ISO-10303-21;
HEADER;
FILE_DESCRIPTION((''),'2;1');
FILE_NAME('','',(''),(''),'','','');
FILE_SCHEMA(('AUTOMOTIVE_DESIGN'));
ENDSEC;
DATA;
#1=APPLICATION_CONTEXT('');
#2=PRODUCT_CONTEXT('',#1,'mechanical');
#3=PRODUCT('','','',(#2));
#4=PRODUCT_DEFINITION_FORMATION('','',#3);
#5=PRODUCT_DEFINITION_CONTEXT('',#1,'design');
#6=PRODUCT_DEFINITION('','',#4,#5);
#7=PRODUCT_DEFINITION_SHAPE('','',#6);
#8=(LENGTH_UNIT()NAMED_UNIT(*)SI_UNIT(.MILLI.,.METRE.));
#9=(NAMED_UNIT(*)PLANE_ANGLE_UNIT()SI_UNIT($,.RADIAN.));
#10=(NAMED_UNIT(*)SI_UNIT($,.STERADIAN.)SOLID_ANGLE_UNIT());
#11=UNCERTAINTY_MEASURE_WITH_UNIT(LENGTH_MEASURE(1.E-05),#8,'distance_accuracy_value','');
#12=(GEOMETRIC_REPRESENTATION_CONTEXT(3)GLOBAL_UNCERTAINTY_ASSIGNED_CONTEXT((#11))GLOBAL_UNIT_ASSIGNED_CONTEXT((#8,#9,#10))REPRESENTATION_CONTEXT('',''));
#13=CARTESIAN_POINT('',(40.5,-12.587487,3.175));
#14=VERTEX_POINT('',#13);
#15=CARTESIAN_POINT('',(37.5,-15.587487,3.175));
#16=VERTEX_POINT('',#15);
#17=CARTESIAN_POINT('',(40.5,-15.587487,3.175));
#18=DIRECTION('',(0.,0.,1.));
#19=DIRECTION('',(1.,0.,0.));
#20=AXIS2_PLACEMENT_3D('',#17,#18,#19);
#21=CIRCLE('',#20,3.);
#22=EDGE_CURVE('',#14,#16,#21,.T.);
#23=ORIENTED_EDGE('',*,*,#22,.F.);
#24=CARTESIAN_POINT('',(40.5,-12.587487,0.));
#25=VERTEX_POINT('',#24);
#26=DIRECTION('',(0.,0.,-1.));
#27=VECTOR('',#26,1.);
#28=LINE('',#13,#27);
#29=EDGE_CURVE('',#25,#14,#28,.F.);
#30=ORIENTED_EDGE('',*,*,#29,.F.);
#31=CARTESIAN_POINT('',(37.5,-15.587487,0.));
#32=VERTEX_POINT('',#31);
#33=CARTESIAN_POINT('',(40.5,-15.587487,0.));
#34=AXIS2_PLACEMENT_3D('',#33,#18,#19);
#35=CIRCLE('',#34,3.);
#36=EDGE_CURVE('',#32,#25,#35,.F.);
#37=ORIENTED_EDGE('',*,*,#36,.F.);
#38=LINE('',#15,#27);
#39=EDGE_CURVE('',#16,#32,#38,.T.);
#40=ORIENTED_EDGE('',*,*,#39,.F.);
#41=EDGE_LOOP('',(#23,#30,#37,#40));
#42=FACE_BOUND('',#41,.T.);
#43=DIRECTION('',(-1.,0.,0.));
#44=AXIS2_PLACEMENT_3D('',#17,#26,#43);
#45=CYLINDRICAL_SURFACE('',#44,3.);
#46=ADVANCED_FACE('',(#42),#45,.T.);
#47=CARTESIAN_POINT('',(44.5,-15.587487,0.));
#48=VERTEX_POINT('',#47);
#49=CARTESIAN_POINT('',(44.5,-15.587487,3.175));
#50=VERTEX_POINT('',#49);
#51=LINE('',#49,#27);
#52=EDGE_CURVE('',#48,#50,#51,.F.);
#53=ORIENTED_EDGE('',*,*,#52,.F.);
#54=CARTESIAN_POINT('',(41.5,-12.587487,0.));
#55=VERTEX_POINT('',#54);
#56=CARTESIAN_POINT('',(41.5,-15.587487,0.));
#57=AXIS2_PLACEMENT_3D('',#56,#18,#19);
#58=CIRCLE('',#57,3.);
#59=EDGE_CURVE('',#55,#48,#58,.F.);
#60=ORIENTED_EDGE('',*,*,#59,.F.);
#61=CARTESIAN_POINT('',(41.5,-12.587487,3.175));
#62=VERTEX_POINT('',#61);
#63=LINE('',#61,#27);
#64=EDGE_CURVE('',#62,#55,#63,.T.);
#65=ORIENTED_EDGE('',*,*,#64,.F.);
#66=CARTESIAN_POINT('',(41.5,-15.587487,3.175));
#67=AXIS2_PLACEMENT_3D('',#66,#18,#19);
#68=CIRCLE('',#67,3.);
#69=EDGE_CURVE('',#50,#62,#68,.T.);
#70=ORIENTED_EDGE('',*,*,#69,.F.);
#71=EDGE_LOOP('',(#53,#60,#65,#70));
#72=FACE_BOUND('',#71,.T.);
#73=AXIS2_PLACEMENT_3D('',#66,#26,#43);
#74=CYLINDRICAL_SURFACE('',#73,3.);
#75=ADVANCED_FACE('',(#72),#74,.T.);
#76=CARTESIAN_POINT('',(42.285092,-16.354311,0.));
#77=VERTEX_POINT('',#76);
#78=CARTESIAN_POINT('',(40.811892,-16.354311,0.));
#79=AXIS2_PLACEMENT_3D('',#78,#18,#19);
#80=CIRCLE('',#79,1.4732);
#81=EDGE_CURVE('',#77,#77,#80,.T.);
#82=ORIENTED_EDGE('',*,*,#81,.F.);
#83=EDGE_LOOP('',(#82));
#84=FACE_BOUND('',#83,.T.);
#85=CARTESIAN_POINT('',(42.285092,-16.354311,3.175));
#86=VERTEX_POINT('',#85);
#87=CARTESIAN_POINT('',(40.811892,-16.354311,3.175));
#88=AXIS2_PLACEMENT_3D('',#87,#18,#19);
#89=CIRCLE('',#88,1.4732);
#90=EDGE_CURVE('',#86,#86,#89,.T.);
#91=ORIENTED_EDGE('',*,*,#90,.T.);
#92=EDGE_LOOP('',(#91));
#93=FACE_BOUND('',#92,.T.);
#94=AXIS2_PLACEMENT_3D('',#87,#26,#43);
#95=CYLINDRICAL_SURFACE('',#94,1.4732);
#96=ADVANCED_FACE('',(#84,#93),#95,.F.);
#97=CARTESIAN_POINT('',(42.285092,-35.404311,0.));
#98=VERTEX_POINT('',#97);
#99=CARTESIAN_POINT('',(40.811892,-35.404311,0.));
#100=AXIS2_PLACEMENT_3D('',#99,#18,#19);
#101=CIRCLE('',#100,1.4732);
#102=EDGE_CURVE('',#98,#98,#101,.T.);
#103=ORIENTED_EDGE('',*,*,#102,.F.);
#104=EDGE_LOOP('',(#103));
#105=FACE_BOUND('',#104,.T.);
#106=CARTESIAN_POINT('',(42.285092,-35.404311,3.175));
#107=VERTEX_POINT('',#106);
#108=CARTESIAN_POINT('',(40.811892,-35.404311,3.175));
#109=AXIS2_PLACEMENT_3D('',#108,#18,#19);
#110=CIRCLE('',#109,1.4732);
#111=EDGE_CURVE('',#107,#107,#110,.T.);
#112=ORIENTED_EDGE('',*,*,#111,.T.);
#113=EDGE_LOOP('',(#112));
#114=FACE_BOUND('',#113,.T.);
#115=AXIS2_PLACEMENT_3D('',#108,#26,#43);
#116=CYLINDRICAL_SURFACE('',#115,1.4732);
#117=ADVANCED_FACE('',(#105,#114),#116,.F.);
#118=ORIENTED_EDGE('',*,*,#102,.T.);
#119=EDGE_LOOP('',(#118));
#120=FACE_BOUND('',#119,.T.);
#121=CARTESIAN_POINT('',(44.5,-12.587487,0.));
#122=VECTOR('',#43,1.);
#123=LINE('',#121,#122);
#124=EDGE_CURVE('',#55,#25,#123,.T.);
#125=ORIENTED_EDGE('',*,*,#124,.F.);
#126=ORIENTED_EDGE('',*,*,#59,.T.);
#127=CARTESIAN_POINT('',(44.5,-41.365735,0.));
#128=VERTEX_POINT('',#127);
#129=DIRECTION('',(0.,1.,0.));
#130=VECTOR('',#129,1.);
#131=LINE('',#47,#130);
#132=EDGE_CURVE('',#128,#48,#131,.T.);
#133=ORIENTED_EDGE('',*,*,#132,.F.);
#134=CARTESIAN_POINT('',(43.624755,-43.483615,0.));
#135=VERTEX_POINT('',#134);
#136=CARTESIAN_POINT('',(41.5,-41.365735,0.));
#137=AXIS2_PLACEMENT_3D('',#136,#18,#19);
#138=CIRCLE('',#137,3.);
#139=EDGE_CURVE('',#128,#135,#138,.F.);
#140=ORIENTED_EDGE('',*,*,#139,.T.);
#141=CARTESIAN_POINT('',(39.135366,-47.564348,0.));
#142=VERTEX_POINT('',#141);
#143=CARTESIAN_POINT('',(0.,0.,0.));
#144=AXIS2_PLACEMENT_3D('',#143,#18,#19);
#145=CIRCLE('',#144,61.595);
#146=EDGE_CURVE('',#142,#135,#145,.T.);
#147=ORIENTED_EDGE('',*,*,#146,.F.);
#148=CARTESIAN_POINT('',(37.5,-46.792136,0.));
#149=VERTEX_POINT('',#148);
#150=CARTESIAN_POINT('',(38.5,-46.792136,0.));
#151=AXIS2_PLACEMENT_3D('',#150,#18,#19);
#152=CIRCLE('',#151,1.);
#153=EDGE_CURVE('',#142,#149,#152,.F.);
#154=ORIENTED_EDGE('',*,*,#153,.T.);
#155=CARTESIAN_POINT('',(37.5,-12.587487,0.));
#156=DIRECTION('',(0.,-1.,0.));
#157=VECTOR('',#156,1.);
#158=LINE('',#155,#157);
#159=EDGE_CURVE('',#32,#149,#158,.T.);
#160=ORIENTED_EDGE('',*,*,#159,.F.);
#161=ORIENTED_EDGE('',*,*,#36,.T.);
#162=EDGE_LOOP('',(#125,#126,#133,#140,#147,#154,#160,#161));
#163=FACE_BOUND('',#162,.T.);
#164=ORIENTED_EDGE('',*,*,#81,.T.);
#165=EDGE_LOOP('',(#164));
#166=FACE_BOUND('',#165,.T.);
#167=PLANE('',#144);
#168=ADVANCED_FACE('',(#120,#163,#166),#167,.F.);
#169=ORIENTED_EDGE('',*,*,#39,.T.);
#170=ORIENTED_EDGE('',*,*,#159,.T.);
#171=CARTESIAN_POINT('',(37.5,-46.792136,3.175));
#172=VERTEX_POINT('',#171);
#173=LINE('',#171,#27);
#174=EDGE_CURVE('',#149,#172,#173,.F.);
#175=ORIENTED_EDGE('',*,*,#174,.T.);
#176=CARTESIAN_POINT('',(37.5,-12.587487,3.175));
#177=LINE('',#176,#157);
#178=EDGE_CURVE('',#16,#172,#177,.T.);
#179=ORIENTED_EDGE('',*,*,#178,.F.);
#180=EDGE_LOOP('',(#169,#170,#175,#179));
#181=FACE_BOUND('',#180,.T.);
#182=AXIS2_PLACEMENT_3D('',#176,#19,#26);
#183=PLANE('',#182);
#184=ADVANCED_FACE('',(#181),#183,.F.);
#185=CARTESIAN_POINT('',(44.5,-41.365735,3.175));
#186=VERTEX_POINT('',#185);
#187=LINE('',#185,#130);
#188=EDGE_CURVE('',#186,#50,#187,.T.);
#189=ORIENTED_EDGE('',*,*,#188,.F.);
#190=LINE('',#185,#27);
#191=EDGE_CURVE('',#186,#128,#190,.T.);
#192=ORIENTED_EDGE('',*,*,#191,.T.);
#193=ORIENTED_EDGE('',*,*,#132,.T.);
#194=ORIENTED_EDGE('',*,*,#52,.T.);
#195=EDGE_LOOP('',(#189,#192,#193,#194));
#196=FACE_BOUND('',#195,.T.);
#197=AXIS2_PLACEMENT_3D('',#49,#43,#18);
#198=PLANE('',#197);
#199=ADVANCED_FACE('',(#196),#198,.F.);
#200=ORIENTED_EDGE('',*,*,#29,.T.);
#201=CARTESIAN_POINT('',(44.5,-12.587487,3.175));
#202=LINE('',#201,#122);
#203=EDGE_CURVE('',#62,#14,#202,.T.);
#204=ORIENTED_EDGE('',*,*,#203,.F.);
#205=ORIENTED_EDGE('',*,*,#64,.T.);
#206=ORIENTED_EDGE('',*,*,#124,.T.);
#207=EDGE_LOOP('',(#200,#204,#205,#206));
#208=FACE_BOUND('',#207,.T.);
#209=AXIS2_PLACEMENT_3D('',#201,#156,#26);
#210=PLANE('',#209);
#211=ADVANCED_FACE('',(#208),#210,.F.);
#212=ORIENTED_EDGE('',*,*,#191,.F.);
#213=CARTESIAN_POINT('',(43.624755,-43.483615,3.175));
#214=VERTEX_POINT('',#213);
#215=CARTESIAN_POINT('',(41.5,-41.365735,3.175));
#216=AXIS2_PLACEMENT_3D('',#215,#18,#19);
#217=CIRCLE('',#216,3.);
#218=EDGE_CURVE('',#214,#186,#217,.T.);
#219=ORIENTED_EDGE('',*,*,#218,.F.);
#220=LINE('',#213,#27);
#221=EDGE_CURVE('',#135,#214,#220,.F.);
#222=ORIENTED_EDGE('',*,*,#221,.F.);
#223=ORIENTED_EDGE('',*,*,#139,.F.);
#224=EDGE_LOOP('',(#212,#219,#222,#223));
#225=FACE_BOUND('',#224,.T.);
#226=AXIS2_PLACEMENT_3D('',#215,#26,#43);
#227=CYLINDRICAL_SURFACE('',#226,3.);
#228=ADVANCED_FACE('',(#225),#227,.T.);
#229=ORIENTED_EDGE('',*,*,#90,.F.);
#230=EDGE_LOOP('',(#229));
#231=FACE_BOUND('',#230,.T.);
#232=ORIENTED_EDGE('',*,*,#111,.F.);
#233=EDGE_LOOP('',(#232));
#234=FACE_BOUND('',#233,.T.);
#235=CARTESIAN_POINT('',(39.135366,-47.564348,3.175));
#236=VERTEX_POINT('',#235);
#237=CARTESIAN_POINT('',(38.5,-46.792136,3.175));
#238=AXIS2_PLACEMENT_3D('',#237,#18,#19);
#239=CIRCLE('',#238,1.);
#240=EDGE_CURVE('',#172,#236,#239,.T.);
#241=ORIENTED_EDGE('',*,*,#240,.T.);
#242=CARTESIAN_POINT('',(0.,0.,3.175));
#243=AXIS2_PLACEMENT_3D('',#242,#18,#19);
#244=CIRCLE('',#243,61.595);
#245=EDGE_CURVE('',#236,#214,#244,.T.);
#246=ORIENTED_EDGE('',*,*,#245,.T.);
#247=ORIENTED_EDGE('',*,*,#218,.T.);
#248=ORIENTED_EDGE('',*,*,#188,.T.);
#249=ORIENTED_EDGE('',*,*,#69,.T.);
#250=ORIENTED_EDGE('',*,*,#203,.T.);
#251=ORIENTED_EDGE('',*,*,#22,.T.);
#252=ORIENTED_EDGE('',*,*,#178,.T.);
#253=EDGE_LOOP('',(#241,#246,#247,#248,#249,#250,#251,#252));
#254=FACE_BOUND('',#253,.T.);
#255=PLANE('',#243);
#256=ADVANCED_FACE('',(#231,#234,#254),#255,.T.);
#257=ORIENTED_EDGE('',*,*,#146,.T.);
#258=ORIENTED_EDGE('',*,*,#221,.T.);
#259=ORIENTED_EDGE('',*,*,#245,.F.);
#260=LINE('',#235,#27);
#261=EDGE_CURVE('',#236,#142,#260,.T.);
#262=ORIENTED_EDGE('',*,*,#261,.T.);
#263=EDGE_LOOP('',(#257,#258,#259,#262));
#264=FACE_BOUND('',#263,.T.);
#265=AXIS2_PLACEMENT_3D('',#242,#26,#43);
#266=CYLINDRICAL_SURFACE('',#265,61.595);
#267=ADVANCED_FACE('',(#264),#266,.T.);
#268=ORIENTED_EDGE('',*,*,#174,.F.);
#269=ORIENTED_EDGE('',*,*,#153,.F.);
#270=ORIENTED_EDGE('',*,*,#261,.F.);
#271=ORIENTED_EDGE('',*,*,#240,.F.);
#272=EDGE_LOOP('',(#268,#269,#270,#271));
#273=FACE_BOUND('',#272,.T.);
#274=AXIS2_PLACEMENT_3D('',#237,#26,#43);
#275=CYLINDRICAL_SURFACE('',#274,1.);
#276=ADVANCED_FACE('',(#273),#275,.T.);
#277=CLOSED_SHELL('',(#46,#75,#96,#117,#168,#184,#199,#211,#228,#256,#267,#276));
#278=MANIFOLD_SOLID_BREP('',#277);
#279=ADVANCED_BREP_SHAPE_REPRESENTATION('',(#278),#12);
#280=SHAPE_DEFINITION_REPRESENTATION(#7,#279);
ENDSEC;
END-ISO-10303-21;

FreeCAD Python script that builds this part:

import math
import FreeCAD as App
import Part
import Sketcher
from FreeCAD import Vector


def edges_at(feature, points):
    """Names of the edges that pass closest to the given points."""
    edges = feature.Shape.Edges
    near = lambda p: min(range(len(edges)), key=lambda i: edges[i].distToShape(Part.Vertex(*p))[0])
    return sorted({f"Edge{near(p) + 1}" for p in points})

doc = App.newDocument("Part")
body = doc.addObject("PartDesign::Body", "Body")

sketch1 = doc.addObject("Sketcher::SketchObject", "Sketch")
body.addObject(sketch1)
sketch1.AttachmentSupport = (doc.XY_Plane, [""])
sketch1.MapMode = "FlatFace"
sketch1.addGeometry([
    Part.LineSegment(Vector(37.5, -12.6, 0), Vector(37.5, -48.9, 0)),
    Part.ArcOfCircle(Part.Circle(Vector(0, 0, 0), Vector(0, 0, 1), 61.6), math.radians(-52.5), math.radians(-43.74)),
    Part.LineSegment(Vector(44.5, -42.6, 0), Vector(44.5, -12.6, 0)),
    Part.LineSegment(Vector(44.5, -12.6, 0), Vector(37.5, -12.6, 0)),
    Part.Circle(Vector(40.8, -35.4, 0), Vector(0, 0, 1), 1.5),
    Part.Circle(Vector(40.8, -16.4, 0), Vector(0, 0, 1), 1.5),
], False)
sketch1.addConstraint([
    Sketcher.Constraint("Coincident", 0, 2, 1, 1),
    Sketcher.Constraint("Coincident", 1, 2, 2, 1),
    Sketcher.Constraint("Coincident", 2, 2, 3, 1),
    Sketcher.Constraint("Coincident", 3, 2, 0, 1),
    Sketcher.Constraint("Vertical", 0),
    Sketcher.Constraint("Vertical", 2),
    Sketcher.Constraint("Horizontal", 3),
    Sketcher.Constraint("Coincident", 1, 3, -1, 1),
    Sketcher.Constraint("Equal", 4, 5),
    Sketcher.Constraint("Vertical", 4, 3, 5, 3),
    Sketcher.Constraint("DistanceX", 3, 2, 3, 1, 7.0),
    Sketcher.Constraint("DistanceY", 2, 1, 2, 2, 30.0),
    Sketcher.Constraint("Radius", 1, 61.595),
    Sketcher.Constraint("Diameter", 4, 2.9464),
    Sketcher.Constraint("DistanceX", -1, 1, 0, 2, 37.5),
    Sketcher.Constraint("DistanceY", 4, 3, 5, 3, 19.05),
    Sketcher.Constraint("DistanceY", 4, 3, -1, 1, 35.404311),
    Sketcher.Constraint("DistanceX", -1, 1, 4, 3, 40.811892),
])
pad1 = doc.addObject("PartDesign::Pad", "Pad")
body.addObject(pad1)
pad1.Profile = sketch1
pad1.Length = 3.175
doc.recompute()

fillet = doc.addObject("PartDesign::Fillet", "Fillet")
body.addObject(fillet)
fillet.Base = (pad1, edges_at(pad1, [(44.5, -12.587, 1.587), (44.5, -42.587, 1.587), (37.5, -12.587, 1.587)]))
fillet.Radius = 3
doc.recompute()

fillet2 = doc.addObject("PartDesign::Fillet", "Fillet001")
body.addObject(fillet2)
fillet2.Base = (fillet, edges_at(fillet, [(37.5, -48.864, 1.587)]))
fillet2.Radius = 1

doc.recompute()
